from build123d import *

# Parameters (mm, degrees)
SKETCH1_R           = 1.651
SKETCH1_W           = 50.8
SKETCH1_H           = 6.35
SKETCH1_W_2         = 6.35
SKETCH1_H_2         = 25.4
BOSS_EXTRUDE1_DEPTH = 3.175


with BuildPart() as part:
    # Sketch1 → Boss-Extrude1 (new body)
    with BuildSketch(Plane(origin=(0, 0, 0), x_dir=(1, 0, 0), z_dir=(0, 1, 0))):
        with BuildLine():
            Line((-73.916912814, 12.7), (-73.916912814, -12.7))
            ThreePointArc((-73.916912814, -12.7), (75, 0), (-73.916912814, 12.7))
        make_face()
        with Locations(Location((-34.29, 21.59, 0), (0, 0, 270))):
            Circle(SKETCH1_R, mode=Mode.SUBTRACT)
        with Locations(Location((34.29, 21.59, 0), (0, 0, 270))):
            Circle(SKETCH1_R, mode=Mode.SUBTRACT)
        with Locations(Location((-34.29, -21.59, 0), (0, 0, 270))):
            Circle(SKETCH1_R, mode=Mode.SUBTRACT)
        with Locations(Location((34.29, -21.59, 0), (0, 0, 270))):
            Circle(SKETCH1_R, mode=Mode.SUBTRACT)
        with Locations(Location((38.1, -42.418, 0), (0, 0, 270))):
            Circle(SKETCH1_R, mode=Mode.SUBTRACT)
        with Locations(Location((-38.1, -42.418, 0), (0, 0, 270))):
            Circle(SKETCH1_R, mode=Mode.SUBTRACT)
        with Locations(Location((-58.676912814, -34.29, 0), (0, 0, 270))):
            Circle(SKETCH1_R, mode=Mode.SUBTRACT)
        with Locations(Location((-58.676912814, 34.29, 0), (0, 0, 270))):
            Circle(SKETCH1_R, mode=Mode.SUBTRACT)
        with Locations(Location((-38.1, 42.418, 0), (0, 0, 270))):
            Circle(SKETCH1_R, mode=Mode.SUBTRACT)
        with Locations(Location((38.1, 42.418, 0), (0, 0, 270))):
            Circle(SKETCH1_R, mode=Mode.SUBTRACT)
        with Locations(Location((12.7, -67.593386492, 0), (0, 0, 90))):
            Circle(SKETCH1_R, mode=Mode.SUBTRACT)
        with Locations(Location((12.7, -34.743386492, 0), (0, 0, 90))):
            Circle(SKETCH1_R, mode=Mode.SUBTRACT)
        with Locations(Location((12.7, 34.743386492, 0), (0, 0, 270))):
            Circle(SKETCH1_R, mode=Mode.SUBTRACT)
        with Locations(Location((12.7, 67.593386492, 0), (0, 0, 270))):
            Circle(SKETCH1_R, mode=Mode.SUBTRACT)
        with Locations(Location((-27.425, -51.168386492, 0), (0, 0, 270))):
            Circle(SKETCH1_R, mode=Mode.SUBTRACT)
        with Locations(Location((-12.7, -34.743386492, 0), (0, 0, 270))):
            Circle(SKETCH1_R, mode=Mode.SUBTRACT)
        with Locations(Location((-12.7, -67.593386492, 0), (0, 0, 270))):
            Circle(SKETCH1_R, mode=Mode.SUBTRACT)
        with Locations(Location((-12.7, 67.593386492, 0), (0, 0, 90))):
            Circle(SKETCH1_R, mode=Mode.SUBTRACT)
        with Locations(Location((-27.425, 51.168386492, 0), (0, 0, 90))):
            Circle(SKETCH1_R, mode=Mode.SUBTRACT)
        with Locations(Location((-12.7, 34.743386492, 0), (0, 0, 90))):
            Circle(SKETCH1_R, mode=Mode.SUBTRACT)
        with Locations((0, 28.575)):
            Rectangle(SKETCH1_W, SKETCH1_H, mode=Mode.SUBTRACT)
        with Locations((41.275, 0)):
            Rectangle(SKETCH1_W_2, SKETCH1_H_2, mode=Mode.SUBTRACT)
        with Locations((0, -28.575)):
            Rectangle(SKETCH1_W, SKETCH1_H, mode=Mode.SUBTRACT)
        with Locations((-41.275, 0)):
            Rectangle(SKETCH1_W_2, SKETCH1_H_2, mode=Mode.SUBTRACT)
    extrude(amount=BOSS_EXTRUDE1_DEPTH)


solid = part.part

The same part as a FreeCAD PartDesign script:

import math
import FreeCAD as App
import Part
import Sketcher

V = App.Vector
Q = App.Units.Quantity


def add_polygon(sketch, points):
    """Adds a closed chain of lines whose ends are joined by coincident constraints."""
    first, n = sketch.GeometryCount, len(points)
    for a, b in zip(points, points[1:] + points[:1]):
        sketch.addGeometry(Part.LineSegment(App.Vector(*a, 0), App.Vector(*b, 0)), False)
    for i in range(n):
        sketch.addConstraint(Sketcher.Constraint("Coincident", first + i, 2, first + (i + 1) % n, 1))

doc = App.newDocument("Part")
body = doc.addObject("PartDesign::Body", "Body")

sketch1 = body.newObject("Sketcher::SketchObject", "Sketch")
sketch1.AttachmentSupport = (doc.getObject("XZ_Plane"), [""])
sketch1.MapMode = "FlatFace"
sketch1.addGeometry(Part.LineSegment(V(-73.9, -12.7, 0), V(-73.9, 12.7, 0)), False)
sketch1.addGeometry(Part.ArcOfCircle(Part.Circle(V(0, 0, 0), V(0, 0, 1), 75), math.radians(-170), math.radians(170)), False)
sketch1.addGeometry(Part.Circle(V(-38.1, 42.4, 0), V(0, 0, 1), 1.7), False)
sketch1.addGeometry(Part.Circle(V(-12.7, 67.6, 0), V(0, 0, 1), 1.7), False)
sketch1.addGeometry(Part.Circle(V(-27.4, 51.2, 0), V(0, 0, 1), 1.7), False)
sketch1.addGeometry(Part.Circle(V(-12.7, 34.7, 0), V(0, 0, 1), 1.7), False)
sketch1.addGeometry(Part.Circle(V(-58.7, 34.3, 0), V(0, 0, 1), 1.7), False)
sketch1.addGeometry(Part.Circle(V(-34.3, 21.6, 0), V(0, 0, 1), 1.7), False)
sketch1.addGeometry(Part.Circle(V(12.7, 67.6, 0), V(0, 0, 1), 1.7), False)
sketch1.addGeometry(Part.Circle(V(12.7, 34.7, 0), V(0, 0, 1), 1.7), False)
sketch1.addGeometry(Part.Circle(V(38.1, 42.4, 0), V(0, 0, 1), 1.7), False)
add_polygon(sketch1, [(25.4, 31.8), (-25.4, 31.8), (-25.4, 25.4), (25.4, 25.4)])
sketch1.addGeometry(Part.Circle(V(34.3, 21.6, 0), V(0, 0, 1), 1.7), False)
add_polygon(sketch1, [(-38.1, 12.7), (-44.5, 12.7), (-44.5, -12.7), (-38.1, -12.7)])
sketch1.addGeometry(Part.Circle(V(-58.7, -34.3, 0), V(0, 0, 1), 1.7), False)
sketch1.addGeometry(Part.Circle(V(-34.3, -21.6, 0), V(0, 0, 1), 1.7), False)
sketch1.addGeometry(Part.Circle(V(-38.1, -42.4, 0), V(0, 0, 1), 1.7), False)
sketch1.addGeometry(Part.Circle(V(-27.4, -51.2, 0), V(0, 0, 1), 1.7), False)
sketch1.addGeometry(Part.Circle(V(-12.7, -34.7, 0), V(0, 0, 1), 1.7), False)
sketch1.addGeometry(Part.Circle(V(-12.7, -67.6, 0), V(0, 0, 1), 1.7), False)
add_polygon(sketch1, [(25.4, -25.4), (-25.4, -25.4), (-25.4, -31.8), (25.4, -31.8)])
add_polygon(sketch1, [(44.5, 12.7), (38.1, 12.7), (38.1, -12.7), (44.5, -12.7)])
sketch1.addGeometry(Part.Circle(V(34.3, -21.6, 0), V(0, 0, 1), 1.7), False)
sketch1.addGeometry(Part.Circle(V(12.7, -34.7, 0), V(0, 0, 1), 1.7), False)
sketch1.addGeometry(Part.Circle(V(12.7, -67.6, 0), V(0, 0, 1), 1.7), False)
sketch1.addGeometry(Part.Circle(V(38.1, -42.4, 0), V(0, 0, 1), 1.7), False)
sketch1.addConstraint([
    Sketcher.Constraint("Coincident", 0, 1, 1, 1),
    Sketcher.Constraint("Coincident", 1, 2, 0, 2),
    Sketcher.Constraint("Vertical", 0),
    Sketcher.Constraint("Horizontal", 11),
    Sketcher.Constraint("Vertical", 12),
    Sketcher.Constraint("Horizontal", 13),
    Sketcher.Constraint("Vertical", 14),
    Sketcher.Constraint("Horizontal", 16),
    Sketcher.Constraint("Vertical", 17),
    Sketcher.Constraint("Horizontal", 18),
    Sketcher.Constraint("Vertical", 19),
    Sketcher.Constraint("Horizontal", 26),
    Sketcher.Constraint("Vertical", 27),
    Sketcher.Constraint("Horizontal", 28),
    Sketcher.Constraint("Vertical", 29),
    Sketcher.Constraint("Horizontal", 30),
    Sketcher.Constraint("Vertical", 31),
    Sketcher.Constraint("Horizontal", 32),
    Sketcher.Constraint("Vertical", 33),
    Sketcher.Constraint("Coincident", 1, 3, -1, 1),
    Sketcher.Constraint("Equal", 2, 3),
    Sketcher.Constraint("Equal", 3, 4),
    Sketcher.Constraint("Equal", 4, 5),
    Sketcher.Constraint("Equal", 5, 6),
    Sketcher.Constraint("Equal", 6, 7),
    Sketcher.Constraint("Equal", 7, 8),
    Sketcher.Constraint("Equal", 8, 9),
    Sketcher.Constraint("Equal", 9, 10),
    Sketcher.Constraint("Equal", 10, 15),
    Sketcher.Constraint("Equal", 15, 20),
    Sketcher.Constraint("Equal", 20, 21),
    Sketcher.Constraint("Equal", 21, 22),
    Sketcher.Constraint("Equal", 22, 23),
    Sketcher.Constraint("Equal", 23, 24),
    Sketcher.Constraint("Equal", 24, 25),
    Sketcher.Constraint("Equal", 25, 34),
    Sketcher.Constraint("Equal", 34, 35),
    Sketcher.Constraint("Equal", 35, 36),
    Sketcher.Constraint("Equal", 36, 37),
    Sketcher.Constraint("Symmetric", 15, 3, 21, 3, -1, 1),
    Sketcher.Constraint("Symmetric", 10, 3, 22, 3, -1, 1),
    Sketcher.Constraint("Symmetric", 9, 3, 24, 3, -1, 1),
    Sketcher.Constraint("Symmetric", 8, 3, 25, 3, -1, 1),
    Sketcher.Constraint("Symmetric", 7, 3, 34, 3, -1, 1),
    Sketcher.Constraint("Symmetric", 5, 3, 35, 3, -1, 1),
    Sketcher.Constraint("Symmetric", 3, 3, 36, 3, -1, 1),
    Sketcher.Constraint("Symmetric", 2, 3, 37, 3, -1, 1),
    Sketcher.Constraint("Symmetric", 13, 2, 26, 2, -1, 1),
    Sketcher.Constraint("Symmetric", 11, 2, 28, 2, -1, 1),
    Sketcher.Constraint("Symmetric", 18, 2, 30, 2, -1, 1),
    Sketcher.Constraint("Symmetric", 16, 2, 32, 2, -1, 1),
    Sketcher.Constraint("Symmetric", 3, 3, 8, 3, -2),
    Sketcher.Constraint("Symmetric", 5, 3, 9, 3, -2),
    Sketcher.Constraint("Symmetric", 2, 3, 10, 3, -2),
    Sketcher.Constraint("Symmetric", 7, 3, 15, 3, -2),
    Sketcher.Constraint("Symmetric", 6, 3, 20, 3, -1),
    Sketcher.Constraint("Symmetric", 4, 3, 23, 3, -1),
    Sketcher.Constraint("Horizontal", 1, 2, 16, 2),
    Sketcher.Constraint("Horizontal", 0, 1, 17, 2),
    Sketcher.Constraint("Vertical", 3, 3, 5, 3),
    Sketcher.Constraint("Vertical", 22, 3, 18, 2),
    Sketcher.Constraint("Vertical", 12, 2, 26, 2),
    Sketcher.Constraint("Equal", 32, 12),
    Sketcher.Constraint("Diameter", 2, Q("0.13 in")),
    Sketcher.Constraint("DistanceX", 11, 2, 11, 1, Q("2 in")),
    Sketcher.Constraint("DistanceY", 0, 1, 0, 2, Q("1 in")),
    Sketcher.Constraint("DistanceY", -1, 1, 12, 2, Q("1 in")),
    Sketcher.Constraint("DistanceX", 2, 3, 3, 3, Q("1 in")),
    Sketcher.Constraint("DistanceX", 3, 3, 8, 3, Q("1 in")),
    Sketcher.Constraint("DistanceX", 16, 2, 16, 1, Q("0.25 in")),
    Sketcher.Constraint("DistanceY", 7, 3, 6, 3, Q("0.5 in")),
    Sketcher.Constraint("DistanceY", 20, 3, 7, 3, Q("2.2 in")),
    Sketcher.Constraint("DistanceX", 0, 1, 20, 3, Q("0.6 in")),
    Sketcher.Constraint("DistanceX", 16, 2, 7, 3, Q("0.4 in")),
    Sketcher.Constraint("DistanceY", -1, 1, 2, 3, Q("1.67 in")),
    Sketcher.Constraint("Radius", 1, Q("75 mm")),
    Sketcher.Constraint("DistanceX", 4, 3, -1, 1, Q("27.425 mm")),
    Sketcher.Constraint("DistanceY", 4, 3, 3, 3, Q("16.425 mm")),
    Sketcher.Constraint("DistanceY", 5, 3, 4, 3, Q("16.425 mm")),
    Sketcher.Constraint("DistanceY", -1, 1, 3, 3, Q("67.593386 mm")),
])
pad1 = body.newObject("PartDesign::Pad", "Pad")
pad1.Profile = sketch1
pad1.Length = Q("0.125 in")
pad1.Reversed = True

doc.recompute()
